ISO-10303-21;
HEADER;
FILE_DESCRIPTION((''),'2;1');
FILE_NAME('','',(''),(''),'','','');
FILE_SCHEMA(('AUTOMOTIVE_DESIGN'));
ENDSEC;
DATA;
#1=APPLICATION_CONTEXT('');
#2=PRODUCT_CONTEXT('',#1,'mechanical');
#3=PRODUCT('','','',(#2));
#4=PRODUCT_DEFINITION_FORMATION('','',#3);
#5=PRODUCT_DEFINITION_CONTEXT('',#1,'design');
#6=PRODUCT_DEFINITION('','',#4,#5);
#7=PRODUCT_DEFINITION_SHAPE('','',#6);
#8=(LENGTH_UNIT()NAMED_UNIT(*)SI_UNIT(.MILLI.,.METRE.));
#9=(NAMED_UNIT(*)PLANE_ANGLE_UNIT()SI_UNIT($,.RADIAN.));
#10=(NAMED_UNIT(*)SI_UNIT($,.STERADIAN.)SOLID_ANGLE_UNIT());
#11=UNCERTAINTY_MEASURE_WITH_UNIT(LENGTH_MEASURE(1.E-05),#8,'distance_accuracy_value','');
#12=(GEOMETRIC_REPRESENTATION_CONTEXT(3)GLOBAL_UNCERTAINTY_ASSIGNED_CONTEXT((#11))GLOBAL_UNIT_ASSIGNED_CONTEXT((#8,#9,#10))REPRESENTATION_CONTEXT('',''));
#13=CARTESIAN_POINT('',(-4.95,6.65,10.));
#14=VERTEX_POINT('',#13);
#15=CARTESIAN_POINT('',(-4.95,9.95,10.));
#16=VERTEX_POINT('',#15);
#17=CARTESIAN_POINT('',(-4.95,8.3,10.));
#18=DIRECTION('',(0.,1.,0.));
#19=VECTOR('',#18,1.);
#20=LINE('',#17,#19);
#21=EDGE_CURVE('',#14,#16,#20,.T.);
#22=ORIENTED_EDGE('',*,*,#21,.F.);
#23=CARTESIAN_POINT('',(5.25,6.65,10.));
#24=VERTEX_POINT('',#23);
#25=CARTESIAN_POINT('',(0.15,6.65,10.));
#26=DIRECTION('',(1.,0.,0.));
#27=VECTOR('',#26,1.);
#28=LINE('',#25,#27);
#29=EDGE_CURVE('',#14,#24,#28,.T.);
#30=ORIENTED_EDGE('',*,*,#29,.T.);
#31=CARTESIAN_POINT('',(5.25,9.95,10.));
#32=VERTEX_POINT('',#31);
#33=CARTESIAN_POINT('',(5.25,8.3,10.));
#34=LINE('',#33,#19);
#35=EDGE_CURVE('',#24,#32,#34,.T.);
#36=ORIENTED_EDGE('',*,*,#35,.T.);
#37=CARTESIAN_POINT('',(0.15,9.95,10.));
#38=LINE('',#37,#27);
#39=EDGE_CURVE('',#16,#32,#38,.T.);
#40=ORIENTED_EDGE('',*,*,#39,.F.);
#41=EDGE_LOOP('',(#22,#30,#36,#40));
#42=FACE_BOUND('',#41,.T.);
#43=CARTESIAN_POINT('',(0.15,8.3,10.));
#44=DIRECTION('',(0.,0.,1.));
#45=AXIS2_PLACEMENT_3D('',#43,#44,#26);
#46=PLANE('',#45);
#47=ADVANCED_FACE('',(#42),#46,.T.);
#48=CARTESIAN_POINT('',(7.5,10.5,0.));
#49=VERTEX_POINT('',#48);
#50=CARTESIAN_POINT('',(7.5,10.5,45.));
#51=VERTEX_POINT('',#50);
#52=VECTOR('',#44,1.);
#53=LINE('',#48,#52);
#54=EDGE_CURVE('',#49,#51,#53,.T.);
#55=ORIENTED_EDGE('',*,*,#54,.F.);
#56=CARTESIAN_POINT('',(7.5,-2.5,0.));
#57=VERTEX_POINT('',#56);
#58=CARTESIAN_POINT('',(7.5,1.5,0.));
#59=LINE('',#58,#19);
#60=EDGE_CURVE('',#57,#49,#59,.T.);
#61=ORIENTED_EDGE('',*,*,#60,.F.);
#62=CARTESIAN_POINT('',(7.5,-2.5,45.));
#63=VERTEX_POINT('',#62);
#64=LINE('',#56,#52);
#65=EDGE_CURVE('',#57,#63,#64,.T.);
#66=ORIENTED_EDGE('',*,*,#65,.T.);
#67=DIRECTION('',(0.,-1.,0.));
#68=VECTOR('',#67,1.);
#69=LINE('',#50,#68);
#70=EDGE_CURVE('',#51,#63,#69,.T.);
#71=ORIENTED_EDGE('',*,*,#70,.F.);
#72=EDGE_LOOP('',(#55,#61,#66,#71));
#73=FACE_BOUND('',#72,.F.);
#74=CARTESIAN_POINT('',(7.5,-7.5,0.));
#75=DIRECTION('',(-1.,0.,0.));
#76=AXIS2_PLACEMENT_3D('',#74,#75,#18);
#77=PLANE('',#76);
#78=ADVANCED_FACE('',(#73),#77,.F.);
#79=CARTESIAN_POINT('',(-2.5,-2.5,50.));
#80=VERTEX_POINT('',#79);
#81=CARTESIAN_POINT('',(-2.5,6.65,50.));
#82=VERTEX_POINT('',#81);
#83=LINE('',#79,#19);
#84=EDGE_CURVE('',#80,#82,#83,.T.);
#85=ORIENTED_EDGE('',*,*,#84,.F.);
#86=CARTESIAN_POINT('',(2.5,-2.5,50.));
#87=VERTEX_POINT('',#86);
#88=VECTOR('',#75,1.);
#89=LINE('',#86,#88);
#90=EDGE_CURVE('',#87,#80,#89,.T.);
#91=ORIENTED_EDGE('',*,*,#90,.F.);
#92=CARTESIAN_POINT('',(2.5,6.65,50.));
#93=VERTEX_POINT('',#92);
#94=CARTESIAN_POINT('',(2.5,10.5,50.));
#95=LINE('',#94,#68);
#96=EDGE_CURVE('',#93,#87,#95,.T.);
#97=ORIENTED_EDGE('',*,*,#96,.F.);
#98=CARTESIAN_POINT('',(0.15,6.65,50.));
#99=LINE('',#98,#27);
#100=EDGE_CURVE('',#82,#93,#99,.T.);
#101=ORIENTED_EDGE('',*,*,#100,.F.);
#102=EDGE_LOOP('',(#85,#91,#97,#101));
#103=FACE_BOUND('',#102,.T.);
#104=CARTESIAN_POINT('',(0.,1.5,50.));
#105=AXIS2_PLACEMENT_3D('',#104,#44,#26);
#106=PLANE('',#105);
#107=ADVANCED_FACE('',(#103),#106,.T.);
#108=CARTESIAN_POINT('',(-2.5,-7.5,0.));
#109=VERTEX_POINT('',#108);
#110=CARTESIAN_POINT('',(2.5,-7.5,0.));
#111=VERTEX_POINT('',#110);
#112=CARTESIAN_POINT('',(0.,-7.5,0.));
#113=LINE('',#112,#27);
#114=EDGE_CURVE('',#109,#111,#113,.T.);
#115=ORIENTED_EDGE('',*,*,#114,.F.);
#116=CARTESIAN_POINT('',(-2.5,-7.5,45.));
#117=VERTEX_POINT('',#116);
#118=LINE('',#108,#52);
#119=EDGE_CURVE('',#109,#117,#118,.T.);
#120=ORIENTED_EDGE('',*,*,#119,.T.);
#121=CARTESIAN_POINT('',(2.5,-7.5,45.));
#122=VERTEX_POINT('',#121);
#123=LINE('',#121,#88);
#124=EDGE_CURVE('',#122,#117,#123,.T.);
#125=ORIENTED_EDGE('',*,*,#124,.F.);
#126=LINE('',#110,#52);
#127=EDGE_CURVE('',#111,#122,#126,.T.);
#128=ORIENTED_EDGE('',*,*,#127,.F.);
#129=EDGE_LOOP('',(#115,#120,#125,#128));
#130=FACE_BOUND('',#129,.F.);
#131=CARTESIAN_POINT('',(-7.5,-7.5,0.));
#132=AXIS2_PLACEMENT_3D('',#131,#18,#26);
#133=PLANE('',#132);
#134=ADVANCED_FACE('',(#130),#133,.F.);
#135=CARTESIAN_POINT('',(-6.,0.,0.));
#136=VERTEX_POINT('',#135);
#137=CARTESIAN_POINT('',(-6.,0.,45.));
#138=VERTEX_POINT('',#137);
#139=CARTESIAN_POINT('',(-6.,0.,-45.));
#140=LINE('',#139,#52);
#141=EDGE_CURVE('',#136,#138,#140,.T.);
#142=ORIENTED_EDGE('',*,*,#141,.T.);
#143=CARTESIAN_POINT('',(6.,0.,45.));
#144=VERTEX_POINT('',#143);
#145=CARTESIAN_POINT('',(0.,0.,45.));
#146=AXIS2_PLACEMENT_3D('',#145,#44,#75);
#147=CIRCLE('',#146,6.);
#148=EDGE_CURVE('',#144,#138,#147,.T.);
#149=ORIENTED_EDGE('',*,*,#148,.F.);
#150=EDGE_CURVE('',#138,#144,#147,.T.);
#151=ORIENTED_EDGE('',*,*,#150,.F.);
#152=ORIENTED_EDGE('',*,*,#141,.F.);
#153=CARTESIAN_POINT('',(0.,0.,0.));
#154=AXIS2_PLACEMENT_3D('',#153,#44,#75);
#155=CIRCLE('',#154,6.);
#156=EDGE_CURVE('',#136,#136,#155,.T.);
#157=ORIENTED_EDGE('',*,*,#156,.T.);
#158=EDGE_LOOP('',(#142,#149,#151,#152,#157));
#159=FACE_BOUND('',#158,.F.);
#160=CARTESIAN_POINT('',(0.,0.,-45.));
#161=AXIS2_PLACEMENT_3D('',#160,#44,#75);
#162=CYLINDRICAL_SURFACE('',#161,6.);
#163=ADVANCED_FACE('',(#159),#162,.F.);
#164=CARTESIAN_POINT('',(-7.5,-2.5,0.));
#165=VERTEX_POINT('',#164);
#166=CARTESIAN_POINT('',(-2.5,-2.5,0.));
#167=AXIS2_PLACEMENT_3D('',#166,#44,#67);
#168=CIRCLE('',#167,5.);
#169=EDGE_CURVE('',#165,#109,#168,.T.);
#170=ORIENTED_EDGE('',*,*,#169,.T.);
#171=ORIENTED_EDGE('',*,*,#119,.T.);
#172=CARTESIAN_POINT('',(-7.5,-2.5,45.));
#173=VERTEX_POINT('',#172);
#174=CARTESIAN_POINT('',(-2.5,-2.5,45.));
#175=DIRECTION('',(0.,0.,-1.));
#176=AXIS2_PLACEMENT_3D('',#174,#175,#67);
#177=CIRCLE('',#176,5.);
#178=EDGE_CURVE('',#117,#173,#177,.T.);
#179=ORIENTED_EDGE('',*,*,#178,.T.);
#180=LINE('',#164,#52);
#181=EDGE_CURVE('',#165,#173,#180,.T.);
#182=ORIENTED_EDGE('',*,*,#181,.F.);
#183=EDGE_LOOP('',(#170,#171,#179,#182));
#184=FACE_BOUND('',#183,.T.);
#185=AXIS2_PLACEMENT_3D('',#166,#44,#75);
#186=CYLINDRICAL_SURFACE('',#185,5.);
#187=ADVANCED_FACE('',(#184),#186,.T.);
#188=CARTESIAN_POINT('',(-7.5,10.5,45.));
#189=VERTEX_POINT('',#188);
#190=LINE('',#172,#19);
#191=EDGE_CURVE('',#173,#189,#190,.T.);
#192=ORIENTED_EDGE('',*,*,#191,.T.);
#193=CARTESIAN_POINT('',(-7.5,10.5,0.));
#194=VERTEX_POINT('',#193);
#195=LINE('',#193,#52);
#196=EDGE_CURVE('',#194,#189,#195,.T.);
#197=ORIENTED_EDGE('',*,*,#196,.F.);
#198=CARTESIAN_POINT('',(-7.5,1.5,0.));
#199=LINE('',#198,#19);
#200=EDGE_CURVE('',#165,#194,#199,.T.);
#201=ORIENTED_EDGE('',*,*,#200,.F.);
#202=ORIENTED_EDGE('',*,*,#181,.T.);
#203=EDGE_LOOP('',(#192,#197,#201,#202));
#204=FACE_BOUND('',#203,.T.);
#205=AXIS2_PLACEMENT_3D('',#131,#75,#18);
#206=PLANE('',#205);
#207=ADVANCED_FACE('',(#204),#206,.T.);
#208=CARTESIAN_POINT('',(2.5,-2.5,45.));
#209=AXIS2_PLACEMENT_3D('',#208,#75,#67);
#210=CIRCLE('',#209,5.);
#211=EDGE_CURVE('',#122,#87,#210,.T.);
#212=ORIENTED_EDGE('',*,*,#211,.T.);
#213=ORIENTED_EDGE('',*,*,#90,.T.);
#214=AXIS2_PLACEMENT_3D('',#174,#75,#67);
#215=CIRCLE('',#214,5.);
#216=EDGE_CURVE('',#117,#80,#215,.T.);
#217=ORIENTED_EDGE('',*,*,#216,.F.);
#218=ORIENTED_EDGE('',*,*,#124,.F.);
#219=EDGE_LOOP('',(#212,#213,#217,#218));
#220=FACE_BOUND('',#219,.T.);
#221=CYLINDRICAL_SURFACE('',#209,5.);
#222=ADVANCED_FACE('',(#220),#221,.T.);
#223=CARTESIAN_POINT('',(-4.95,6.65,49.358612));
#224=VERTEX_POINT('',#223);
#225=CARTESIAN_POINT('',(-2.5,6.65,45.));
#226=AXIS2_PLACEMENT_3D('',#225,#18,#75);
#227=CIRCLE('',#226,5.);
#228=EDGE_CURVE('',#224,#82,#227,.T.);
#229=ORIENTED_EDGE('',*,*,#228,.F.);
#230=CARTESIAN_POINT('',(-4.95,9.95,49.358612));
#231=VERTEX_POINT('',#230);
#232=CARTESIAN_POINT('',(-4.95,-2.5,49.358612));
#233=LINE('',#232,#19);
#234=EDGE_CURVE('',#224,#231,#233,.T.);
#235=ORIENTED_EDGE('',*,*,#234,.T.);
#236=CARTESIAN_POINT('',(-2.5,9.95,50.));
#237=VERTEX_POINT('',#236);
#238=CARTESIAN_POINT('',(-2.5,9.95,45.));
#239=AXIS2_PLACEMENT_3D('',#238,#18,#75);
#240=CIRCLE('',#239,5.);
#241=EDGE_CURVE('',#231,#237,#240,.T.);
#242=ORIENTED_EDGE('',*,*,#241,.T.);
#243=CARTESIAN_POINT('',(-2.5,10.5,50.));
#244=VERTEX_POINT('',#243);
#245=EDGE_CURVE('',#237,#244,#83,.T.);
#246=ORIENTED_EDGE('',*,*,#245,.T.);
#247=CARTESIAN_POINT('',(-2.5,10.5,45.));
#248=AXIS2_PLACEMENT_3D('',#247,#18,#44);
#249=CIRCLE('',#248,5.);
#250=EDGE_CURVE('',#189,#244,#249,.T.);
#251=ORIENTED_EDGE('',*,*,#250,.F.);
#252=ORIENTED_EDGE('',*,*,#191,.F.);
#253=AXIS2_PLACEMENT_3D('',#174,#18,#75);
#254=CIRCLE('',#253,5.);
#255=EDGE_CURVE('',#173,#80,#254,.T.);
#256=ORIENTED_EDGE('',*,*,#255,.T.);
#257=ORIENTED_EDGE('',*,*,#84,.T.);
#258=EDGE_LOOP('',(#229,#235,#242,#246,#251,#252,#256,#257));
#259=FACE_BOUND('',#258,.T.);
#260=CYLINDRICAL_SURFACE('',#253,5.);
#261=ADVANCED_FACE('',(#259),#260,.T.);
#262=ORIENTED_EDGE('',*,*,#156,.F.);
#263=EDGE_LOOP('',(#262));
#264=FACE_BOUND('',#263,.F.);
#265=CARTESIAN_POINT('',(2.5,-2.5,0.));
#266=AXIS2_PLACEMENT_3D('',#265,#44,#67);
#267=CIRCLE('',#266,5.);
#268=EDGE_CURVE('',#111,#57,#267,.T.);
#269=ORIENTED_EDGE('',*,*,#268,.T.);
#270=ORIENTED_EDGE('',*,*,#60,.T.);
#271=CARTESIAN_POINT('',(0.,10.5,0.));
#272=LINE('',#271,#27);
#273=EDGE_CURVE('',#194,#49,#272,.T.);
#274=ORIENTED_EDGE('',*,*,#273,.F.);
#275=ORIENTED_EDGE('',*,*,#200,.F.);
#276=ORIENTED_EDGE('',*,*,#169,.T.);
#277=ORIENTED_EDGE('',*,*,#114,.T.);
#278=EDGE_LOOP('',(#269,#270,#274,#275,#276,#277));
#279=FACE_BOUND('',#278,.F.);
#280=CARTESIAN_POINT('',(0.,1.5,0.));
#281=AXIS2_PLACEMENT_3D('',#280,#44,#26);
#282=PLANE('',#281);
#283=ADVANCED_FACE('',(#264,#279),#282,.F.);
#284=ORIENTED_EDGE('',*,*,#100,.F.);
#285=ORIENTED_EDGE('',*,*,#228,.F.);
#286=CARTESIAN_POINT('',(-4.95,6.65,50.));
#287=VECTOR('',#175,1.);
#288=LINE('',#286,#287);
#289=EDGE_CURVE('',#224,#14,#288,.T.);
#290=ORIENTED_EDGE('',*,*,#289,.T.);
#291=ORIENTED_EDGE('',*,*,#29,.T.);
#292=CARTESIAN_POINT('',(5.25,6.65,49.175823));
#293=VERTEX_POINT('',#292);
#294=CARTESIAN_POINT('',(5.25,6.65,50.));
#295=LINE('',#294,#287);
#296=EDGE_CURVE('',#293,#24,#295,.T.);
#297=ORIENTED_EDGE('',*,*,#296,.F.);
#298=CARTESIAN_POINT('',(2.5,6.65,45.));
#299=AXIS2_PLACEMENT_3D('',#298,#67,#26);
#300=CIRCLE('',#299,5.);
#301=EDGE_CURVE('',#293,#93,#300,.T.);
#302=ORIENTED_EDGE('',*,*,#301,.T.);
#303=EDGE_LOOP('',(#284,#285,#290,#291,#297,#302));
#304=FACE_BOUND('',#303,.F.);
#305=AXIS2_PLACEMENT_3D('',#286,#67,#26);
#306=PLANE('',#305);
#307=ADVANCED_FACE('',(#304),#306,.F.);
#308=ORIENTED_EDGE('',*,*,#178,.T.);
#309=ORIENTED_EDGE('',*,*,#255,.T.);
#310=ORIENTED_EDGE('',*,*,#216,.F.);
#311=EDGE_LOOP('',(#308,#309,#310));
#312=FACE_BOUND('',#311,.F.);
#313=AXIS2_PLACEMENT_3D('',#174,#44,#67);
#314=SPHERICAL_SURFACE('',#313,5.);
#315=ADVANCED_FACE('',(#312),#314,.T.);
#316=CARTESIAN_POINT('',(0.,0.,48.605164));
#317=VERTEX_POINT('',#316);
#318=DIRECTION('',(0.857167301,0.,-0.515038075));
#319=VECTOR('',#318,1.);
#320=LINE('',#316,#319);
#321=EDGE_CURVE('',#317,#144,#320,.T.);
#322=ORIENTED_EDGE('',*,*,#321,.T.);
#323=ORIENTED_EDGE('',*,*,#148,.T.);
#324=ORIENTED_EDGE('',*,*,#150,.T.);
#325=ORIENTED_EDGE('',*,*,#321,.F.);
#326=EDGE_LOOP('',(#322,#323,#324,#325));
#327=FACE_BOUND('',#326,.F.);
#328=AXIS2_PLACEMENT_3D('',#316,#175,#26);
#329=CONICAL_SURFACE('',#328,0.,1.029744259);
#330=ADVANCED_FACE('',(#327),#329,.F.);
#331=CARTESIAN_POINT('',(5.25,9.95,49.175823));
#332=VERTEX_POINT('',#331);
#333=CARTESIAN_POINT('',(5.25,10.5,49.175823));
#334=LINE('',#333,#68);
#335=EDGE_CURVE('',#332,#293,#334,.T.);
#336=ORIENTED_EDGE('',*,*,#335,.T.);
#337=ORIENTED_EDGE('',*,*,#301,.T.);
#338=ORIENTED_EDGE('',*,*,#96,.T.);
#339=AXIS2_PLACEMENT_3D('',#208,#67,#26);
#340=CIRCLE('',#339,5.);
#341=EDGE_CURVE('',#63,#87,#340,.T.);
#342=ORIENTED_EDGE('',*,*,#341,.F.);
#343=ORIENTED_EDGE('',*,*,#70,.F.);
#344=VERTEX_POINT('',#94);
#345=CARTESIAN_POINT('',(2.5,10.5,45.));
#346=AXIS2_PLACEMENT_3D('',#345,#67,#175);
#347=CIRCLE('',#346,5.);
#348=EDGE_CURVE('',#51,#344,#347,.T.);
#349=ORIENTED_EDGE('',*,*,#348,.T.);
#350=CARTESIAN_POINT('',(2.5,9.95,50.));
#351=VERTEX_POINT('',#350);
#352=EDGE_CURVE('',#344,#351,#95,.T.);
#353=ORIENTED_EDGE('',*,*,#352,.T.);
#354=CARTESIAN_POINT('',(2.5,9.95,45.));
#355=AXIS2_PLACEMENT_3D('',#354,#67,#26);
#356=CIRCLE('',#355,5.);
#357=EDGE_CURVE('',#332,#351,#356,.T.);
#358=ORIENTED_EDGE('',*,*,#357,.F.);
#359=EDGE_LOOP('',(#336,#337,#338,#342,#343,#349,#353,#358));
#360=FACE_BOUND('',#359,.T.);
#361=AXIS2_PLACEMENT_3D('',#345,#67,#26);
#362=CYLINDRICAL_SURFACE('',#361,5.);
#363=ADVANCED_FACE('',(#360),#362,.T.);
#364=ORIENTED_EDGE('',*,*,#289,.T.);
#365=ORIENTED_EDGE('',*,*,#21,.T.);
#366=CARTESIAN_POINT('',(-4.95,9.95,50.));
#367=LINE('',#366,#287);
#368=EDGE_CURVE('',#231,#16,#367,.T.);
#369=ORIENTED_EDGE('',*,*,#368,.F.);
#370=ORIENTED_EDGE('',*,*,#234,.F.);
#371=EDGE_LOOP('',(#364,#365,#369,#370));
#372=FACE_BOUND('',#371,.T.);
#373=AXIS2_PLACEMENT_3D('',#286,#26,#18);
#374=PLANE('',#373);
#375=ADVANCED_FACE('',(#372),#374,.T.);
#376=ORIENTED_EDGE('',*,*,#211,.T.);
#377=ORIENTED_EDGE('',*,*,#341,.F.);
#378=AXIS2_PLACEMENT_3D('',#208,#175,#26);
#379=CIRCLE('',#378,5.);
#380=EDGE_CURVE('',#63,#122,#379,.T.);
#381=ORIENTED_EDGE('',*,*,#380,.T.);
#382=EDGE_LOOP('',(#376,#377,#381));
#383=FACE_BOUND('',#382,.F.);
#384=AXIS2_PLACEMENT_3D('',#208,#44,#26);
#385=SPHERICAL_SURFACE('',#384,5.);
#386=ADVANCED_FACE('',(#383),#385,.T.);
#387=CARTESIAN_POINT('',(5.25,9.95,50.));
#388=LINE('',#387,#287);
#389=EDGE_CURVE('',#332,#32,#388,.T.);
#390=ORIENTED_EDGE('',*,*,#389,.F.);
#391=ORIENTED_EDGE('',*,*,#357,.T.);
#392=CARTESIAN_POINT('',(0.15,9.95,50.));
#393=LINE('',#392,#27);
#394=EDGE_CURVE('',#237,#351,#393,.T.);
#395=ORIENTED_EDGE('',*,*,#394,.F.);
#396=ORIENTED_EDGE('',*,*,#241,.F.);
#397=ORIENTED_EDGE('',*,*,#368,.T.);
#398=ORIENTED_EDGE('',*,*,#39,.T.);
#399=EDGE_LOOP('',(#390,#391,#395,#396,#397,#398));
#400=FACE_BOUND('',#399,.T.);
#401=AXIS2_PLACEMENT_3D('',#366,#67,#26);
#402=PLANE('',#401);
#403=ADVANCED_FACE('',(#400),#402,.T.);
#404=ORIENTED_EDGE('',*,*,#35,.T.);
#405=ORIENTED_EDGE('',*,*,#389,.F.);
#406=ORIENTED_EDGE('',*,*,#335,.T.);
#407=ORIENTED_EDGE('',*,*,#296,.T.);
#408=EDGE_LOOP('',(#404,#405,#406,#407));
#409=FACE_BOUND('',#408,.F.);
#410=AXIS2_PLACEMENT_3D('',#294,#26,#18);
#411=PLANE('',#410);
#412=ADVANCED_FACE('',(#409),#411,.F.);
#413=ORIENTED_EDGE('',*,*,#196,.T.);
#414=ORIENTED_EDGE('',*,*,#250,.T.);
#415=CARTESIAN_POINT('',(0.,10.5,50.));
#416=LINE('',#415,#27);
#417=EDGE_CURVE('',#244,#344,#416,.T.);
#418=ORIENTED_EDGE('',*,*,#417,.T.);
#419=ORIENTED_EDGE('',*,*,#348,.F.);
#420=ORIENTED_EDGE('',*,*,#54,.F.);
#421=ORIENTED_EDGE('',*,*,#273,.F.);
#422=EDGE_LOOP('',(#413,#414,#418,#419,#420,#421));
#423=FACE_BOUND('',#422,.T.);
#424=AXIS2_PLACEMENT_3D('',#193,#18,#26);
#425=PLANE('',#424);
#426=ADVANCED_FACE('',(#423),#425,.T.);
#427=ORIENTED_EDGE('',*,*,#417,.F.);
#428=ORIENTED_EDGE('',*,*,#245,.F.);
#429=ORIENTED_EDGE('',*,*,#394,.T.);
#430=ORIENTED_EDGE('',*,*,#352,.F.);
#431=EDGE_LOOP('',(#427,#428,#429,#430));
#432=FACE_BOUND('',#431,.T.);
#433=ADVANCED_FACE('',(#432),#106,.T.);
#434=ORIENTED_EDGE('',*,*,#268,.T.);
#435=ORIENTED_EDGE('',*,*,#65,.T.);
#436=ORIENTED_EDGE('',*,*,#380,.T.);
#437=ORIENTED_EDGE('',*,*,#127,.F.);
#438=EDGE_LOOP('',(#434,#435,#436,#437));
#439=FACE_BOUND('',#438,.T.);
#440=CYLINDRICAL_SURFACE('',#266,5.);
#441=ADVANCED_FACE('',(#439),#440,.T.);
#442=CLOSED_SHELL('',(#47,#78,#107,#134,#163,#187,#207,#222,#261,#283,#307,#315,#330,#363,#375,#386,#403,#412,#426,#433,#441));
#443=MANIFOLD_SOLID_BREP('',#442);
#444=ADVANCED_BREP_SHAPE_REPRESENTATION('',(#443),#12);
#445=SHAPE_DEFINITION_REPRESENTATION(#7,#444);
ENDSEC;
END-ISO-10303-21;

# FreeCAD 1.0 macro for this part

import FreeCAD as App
import Part
import Sketcher


def edges_at(feature, points):
    """Names of the edges that pass closest to the given points."""
    edges = feature.Shape.Edges
    near = lambda p: min(range(len(edges)), key=lambda i: edges[i].distToShape(Part.Vertex(*p))[0])
    return sorted({f"Edge{near(p) + 1}" for p in points})

doc = App.newDocument("Part")
body = doc.addObject("PartDesign::Body", "Body")

# Sketch on XY plane
sketch1 = body.newObject("Sketcher::SketchObject", "Sketch")
sketch1.AttachmentSupport = (doc.getObject("XY_Plane"), [""])
sketch1.MapMode = "FlatFace"
sketch1.addGeometry([
    Part.LineSegment(App.Vector(-8, 10, 0), App.Vector(-8, -8, 0)),
    Part.LineSegment(App.Vector(-8, -8, 0), App.Vector(8, -8, 0)),
    Part.LineSegment(App.Vector(8, -8, 0), App.Vector(8, 10, 0)),
    Part.LineSegment(App.Vector(8, 10, 0), App.Vector(-8, 10, 0)),
], False)
sketch1.addConstraint([
    Sketcher.Constraint("Coincident", 0, 2, 1, 1),
    Sketcher.Constraint("Coincident", 1, 2, 2, 1),
    Sketcher.Constraint("Coincident", 2, 2, 3, 1),
    Sketcher.Constraint("Coincident", 3, 2, 0, 1),
    Sketcher.Constraint("Vertical", 0),
    Sketcher.Constraint("Horizontal", 1),
    Sketcher.Constraint("Vertical", 2),
    Sketcher.Constraint("Horizontal", 3),
    Sketcher.Constraint("DistanceX", 1, 1, 1, 2, 15.0),
    Sketcher.Constraint("DistanceY", 0, 2, 0, 1, 18.0),
    Sketcher.Constraint("DistanceX", 0, 2, -1, 1, 7.5),
    Sketcher.Constraint("DistanceY", 0, 2, -1, 1, 7.5),
])
pad1 = body.newObject("PartDesign::Pad", "Pad")
pad1.Profile = sketch1
pad1.Length = 50

# Sketch on XY plane
sketch2 = body.newObject("Sketcher::SketchObject", "Sketch001")
sketch2.AttachmentSupport = (doc.getObject("XY_Plane"), [""])
sketch2.MapMode = "FlatFace"
sketch2.addGeometry(Part.Circle(App.Vector(0, 0, 0), App.Vector(0, 0, 1), 6), False)
sketch2.addConstraint([
    Sketcher.Constraint("Coincident", 0, 3, -1, 1),
    Sketcher.Constraint("Diameter", 0, 12.0),
])
doc.recompute()
hole = body.newObject("PartDesign::Hole", "Hole")
hole.Profile = sketch2
hole.ThreadType = "None"
hole.Diameter = 12
hole.DepthType = "Dimension"
hole.Depth = 45
hole.DrillPoint = "Angled"
hole.DrillPointAngle = 118
hole.Reversed = True
doc.recompute()

fillet = body.newObject("PartDesign::Fillet", "Fillet")
fillet.Base = (hole, edges_at(hole, [(7.5, -7.5, 25), (-7.5, -7.5, 25)]))
fillet.Radius = 5
doc.recompute()

fillet2 = body.newObject("PartDesign::Fillet", "Fillet001")
fillet2.Base = (fillet, edges_at(fillet, [(-7.5, 4, 50)]))
fillet2.Radius = 5

# Sketch on XY plane
sketch3 = body.newObject("Sketcher::SketchObject", "Sketch002")
sketch3.AttachmentSupport = (doc.getObject("XY_Plane"), [""])
sketch3.MapMode = "FlatFace"
sketch3.AttachmentOffset = App.Placement(App.Vector(0, 0, 50), App.Rotation())
sketch3.addGeometry([
    Part.LineSegment(App.Vector(-5, 9.9, 0), App.Vector(-5, 6.7, 0)),
    Part.LineSegment(App.Vector(-5, 6.7, 0), App.Vector(5.2, 6.7, 0)),
    Part.LineSegment(App.Vector(5.2, 6.7, 0), App.Vector(5.2, 9.9, 0)),
    Part.LineSegment(App.Vector(5.2, 9.9, 0), App.Vector(-5, 9.9, 0)),
], False)
sketch3.addConstraint([
    Sketcher.Constraint("Coincident", 0, 2, 1, 1),
    Sketcher.Constraint("Coincident", 1, 2, 2, 1),
    Sketcher.Constraint("Coincident", 2, 2, 3, 1),
    Sketcher.Constraint("Coincident", 3, 2, 0, 1),
    Sketcher.Constraint("Vertical", 0),
    Sketcher.Constraint("Horizontal", 1),
    Sketcher.Constraint("Vertical", 2),
    Sketcher.Constraint("Horizontal", 3),
    Sketcher.Constraint("DistanceX", 1, 1, 1, 2, 10.2),
    Sketcher.Constraint("DistanceY", 0, 2, 0, 1, 3.3),
    Sketcher.Constraint("DistanceX", 0, 2, -1, 1, 4.95),
    Sketcher.Constraint("DistanceY", -1, 1, 0, 2, 6.65),
])
pocket1 = body.newObject("PartDesign::Pocket", "Pocket")
pocket1.Profile = sketch3
pocket1.Length = 40

doc.recompute()
